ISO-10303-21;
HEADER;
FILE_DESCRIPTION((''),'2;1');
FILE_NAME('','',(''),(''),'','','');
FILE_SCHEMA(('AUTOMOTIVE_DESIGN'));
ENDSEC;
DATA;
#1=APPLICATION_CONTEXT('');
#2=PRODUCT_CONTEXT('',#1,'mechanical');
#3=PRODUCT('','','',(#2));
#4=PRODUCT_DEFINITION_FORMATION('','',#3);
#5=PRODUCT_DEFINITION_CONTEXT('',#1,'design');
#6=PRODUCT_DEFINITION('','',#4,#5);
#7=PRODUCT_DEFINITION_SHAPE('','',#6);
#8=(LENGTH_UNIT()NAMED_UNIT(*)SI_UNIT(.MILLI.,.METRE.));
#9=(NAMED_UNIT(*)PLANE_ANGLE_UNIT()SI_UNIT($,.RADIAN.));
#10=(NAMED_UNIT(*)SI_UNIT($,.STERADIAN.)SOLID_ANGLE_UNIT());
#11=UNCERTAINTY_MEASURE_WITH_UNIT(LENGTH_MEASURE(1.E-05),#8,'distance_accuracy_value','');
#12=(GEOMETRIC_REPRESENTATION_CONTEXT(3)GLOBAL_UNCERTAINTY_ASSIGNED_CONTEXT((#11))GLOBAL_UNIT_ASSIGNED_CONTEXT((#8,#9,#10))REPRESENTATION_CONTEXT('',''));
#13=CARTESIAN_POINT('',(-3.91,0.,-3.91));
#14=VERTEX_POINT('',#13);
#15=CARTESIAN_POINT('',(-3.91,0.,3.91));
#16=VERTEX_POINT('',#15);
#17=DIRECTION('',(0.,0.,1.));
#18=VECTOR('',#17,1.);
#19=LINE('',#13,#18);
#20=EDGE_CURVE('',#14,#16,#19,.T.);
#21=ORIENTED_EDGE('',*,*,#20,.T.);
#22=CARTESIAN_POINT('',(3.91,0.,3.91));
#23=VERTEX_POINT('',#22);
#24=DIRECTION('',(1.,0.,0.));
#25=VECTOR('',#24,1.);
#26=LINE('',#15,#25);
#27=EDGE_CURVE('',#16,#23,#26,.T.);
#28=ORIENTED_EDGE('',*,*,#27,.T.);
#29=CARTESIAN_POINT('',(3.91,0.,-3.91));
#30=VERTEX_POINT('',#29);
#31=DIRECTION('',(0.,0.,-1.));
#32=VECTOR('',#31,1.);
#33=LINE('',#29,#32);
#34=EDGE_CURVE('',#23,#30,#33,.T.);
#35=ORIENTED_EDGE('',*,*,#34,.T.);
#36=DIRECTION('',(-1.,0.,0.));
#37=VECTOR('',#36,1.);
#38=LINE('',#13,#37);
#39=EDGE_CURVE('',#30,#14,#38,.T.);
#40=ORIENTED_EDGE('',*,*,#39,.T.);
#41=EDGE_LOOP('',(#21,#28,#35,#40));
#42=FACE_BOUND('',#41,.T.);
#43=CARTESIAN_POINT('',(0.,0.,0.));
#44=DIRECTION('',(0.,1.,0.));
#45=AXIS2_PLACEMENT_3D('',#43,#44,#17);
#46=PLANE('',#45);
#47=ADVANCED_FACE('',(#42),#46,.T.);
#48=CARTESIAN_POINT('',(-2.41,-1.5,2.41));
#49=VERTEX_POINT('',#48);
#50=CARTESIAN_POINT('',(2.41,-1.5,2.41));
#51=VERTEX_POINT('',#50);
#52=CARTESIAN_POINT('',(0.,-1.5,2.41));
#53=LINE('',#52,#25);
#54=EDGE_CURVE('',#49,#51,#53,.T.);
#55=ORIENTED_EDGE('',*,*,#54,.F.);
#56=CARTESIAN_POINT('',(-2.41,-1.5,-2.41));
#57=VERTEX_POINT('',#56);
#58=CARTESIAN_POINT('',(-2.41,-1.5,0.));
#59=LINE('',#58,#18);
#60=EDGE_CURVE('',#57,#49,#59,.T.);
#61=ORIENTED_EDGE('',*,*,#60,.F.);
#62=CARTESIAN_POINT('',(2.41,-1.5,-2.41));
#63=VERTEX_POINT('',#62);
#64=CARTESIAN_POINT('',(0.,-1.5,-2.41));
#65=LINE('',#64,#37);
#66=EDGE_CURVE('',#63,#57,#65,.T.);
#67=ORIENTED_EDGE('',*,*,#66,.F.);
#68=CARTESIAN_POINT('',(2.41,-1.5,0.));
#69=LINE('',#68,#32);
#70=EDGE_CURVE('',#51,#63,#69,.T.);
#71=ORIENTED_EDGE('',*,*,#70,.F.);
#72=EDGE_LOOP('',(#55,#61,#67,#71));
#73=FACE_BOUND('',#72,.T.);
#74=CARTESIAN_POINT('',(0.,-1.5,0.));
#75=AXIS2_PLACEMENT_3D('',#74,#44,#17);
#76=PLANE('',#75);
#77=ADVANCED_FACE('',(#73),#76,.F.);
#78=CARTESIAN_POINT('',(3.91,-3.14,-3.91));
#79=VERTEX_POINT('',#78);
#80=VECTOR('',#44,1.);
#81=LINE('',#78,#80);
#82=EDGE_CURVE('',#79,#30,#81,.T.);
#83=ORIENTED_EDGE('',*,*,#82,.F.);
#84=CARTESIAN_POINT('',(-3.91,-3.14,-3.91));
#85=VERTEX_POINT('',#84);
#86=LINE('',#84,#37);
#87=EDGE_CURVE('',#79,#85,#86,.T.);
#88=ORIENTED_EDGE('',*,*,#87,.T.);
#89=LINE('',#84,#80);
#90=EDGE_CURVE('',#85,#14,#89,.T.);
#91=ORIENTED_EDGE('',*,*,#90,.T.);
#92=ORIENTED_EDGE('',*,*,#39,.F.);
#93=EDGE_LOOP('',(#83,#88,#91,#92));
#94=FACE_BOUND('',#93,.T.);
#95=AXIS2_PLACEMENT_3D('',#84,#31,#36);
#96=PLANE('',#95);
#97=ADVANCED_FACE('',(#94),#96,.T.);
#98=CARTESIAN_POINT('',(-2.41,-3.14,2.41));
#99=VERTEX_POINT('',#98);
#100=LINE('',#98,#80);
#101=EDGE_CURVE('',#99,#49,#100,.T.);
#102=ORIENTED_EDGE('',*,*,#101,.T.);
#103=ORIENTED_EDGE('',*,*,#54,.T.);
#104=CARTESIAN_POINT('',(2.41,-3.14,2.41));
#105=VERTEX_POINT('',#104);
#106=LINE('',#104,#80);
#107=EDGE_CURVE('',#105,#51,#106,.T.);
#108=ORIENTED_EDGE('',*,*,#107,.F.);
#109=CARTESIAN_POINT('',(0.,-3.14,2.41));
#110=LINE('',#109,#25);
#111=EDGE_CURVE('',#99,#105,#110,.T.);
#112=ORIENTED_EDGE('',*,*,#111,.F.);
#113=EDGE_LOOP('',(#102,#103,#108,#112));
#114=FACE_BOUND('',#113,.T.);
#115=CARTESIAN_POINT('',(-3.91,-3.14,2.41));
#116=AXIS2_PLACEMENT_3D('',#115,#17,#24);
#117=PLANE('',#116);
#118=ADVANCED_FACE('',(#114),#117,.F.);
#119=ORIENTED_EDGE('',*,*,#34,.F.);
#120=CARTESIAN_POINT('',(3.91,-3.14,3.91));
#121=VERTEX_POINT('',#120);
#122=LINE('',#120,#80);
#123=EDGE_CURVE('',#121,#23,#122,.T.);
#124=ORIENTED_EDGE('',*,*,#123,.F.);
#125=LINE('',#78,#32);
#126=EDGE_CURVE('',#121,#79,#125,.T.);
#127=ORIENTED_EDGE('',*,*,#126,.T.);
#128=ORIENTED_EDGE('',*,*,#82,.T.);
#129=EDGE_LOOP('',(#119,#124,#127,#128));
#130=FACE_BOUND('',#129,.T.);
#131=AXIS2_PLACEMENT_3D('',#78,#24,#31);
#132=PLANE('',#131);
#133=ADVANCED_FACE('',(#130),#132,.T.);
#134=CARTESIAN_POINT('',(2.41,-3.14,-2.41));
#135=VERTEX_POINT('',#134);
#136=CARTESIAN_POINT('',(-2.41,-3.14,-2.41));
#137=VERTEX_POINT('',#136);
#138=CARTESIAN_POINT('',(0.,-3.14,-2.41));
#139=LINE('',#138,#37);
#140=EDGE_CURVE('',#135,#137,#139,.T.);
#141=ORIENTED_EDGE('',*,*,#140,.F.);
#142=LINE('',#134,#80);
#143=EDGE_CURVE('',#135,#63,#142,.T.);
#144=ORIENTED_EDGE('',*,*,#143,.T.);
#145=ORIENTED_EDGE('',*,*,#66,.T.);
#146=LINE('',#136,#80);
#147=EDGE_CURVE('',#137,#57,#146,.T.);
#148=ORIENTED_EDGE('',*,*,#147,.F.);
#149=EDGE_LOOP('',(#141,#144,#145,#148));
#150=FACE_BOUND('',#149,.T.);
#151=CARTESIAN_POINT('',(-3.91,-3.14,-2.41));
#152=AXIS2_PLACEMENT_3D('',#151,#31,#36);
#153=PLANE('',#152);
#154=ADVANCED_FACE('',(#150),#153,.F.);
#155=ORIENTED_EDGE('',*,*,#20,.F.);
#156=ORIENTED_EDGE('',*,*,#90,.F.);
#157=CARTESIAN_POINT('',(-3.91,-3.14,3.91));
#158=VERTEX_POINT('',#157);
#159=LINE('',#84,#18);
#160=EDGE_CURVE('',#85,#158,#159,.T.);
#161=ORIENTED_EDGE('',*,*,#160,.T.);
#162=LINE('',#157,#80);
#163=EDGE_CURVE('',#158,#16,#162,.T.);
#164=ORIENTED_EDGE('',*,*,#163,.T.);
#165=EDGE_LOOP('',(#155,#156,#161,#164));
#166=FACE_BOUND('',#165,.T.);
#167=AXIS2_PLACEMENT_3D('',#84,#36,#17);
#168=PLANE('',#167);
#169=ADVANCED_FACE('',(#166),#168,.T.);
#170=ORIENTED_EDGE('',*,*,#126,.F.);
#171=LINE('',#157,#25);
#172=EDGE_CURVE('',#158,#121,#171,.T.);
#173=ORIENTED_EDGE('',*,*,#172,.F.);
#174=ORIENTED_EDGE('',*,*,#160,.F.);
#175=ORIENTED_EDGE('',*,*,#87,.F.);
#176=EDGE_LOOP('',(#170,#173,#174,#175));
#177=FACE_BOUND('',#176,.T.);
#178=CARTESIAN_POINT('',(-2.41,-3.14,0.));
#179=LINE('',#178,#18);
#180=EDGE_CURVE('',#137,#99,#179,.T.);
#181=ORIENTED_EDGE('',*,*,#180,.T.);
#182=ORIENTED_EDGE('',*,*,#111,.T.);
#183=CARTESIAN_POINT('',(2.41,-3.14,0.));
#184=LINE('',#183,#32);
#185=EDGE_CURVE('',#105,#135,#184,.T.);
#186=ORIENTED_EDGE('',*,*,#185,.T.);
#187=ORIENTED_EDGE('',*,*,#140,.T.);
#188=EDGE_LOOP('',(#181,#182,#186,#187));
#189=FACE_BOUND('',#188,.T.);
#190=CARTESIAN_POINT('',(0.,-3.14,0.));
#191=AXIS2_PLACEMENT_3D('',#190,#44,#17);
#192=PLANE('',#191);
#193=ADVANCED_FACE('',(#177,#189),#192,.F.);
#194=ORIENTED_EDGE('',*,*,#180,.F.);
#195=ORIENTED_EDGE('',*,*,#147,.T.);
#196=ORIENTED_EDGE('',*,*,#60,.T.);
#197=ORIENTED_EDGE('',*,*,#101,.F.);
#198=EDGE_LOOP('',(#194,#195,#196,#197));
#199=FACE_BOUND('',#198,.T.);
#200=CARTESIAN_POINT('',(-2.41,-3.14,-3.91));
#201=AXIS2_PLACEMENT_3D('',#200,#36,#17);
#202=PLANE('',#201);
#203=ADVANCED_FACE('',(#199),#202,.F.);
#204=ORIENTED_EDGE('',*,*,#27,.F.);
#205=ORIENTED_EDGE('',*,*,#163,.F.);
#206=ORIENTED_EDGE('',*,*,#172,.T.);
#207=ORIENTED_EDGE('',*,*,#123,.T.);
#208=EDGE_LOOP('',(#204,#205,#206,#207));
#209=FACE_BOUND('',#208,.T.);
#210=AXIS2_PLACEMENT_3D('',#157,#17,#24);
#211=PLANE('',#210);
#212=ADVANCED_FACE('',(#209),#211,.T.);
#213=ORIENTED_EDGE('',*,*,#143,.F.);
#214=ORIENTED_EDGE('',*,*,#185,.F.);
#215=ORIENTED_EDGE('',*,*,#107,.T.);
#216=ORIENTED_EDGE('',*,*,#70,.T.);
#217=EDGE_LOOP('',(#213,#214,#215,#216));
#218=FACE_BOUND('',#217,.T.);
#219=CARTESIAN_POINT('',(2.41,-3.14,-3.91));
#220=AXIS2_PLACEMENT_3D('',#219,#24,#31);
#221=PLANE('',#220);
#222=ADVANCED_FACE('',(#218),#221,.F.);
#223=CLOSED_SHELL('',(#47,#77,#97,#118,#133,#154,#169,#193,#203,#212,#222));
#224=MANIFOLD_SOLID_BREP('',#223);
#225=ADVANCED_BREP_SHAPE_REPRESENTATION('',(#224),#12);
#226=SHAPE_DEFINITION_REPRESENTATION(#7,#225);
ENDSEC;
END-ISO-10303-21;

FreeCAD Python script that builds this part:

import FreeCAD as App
import Part
import Sketcher

V = App.Vector
Q = App.Units.Quantity


def faces_at(feature, points):
    """Names of the faces that lie closest to the given points."""
    faces = feature.Shape.Faces
    near = lambda p: min(range(len(faces)), key=lambda i: faces[i].distToShape(Part.Vertex(*p))[0])
    return sorted({f"Face{near(p) + 1}" for p in points})

doc = App.newDocument("Part")
params = doc.addObject("Spreadsheet::Sheet", "Params")
for row, (alias, value) in enumerate([
    ("sketch1_width", "7.82 mm"),
    ("pad1_length", "3.14 mm"),
    ("thickness_wall", "1.5 mm"),
], start=1):
    params.set(f"A{row}", alias)
    params.set(f"B{row}", "=" + value)
    params.setAlias(f"B{row}", alias)

body = doc.addObject("PartDesign::Body", "Body")

sketch1 = body.newObject("Sketcher::SketchObject", "Sketch")
sketch1.AttachmentSupport = (doc.getObject("XZ_Plane"), [""])
sketch1.MapMode = "FlatFace"
sketch1.addGeometry(Part.LineSegment(V(-4, -4, 0), V(-4, 4, 0)), False)
sketch1.addGeometry(Part.LineSegment(V(-4, 4, 0), V(4, 4, 0)), False)
sketch1.addGeometry(Part.LineSegment(V(4, 4, 0), V(4, -4, 0)), False)
sketch1.addGeometry(Part.LineSegment(V(4, -4, 0), V(-4, -4, 0)), False)
sketch1.addConstraint(Sketcher.Constraint("Coincident", 0, 2, 1, 1))
sketch1.addConstraint(Sketcher.Constraint("Coincident", 1, 2, 2, 1))
sketch1.addConstraint(Sketcher.Constraint("Coincident", 2, 2, 3, 1))
sketch1.addConstraint(Sketcher.Constraint("Coincident", 3, 2, 0, 1))
sketch1.addConstraint(Sketcher.Constraint("Vertical", 0))
sketch1.addConstraint(Sketcher.Constraint("Horizontal", 1))
sketch1.addConstraint(Sketcher.Constraint("Vertical", 2))
sketch1.addConstraint(Sketcher.Constraint("Horizontal", 3))
sketch1.addConstraint(Sketcher.Constraint("Symmetric", 0, 2, 2, 2, -1, 1))
sketch1.addConstraint(Sketcher.Constraint("Equal", 3, 0))
sketch1.addConstraint(Sketcher.Constraint("DistanceX", 1, 1, 1, 2, Q("7.82 mm")))
sketch1.setExpression("Constraints[10]", "Params.sketch1_width")
pad1 = body.newObject("PartDesign::Pad", "Pad")
pad1.Profile = sketch1
pad1.setExpression("Length", "Params.pad1_length")
doc.recompute()

thickness = body.newObject("PartDesign::Thickness", "Thickness")
thickness.Base = (pad1, faces_at(pad1, [(0, -3.14, 0)]))
thickness.setExpression("Value", "Params.thickness_wall")
thickness.Reversed = True
thickness.Join = "Intersection"

doc.recompute()
